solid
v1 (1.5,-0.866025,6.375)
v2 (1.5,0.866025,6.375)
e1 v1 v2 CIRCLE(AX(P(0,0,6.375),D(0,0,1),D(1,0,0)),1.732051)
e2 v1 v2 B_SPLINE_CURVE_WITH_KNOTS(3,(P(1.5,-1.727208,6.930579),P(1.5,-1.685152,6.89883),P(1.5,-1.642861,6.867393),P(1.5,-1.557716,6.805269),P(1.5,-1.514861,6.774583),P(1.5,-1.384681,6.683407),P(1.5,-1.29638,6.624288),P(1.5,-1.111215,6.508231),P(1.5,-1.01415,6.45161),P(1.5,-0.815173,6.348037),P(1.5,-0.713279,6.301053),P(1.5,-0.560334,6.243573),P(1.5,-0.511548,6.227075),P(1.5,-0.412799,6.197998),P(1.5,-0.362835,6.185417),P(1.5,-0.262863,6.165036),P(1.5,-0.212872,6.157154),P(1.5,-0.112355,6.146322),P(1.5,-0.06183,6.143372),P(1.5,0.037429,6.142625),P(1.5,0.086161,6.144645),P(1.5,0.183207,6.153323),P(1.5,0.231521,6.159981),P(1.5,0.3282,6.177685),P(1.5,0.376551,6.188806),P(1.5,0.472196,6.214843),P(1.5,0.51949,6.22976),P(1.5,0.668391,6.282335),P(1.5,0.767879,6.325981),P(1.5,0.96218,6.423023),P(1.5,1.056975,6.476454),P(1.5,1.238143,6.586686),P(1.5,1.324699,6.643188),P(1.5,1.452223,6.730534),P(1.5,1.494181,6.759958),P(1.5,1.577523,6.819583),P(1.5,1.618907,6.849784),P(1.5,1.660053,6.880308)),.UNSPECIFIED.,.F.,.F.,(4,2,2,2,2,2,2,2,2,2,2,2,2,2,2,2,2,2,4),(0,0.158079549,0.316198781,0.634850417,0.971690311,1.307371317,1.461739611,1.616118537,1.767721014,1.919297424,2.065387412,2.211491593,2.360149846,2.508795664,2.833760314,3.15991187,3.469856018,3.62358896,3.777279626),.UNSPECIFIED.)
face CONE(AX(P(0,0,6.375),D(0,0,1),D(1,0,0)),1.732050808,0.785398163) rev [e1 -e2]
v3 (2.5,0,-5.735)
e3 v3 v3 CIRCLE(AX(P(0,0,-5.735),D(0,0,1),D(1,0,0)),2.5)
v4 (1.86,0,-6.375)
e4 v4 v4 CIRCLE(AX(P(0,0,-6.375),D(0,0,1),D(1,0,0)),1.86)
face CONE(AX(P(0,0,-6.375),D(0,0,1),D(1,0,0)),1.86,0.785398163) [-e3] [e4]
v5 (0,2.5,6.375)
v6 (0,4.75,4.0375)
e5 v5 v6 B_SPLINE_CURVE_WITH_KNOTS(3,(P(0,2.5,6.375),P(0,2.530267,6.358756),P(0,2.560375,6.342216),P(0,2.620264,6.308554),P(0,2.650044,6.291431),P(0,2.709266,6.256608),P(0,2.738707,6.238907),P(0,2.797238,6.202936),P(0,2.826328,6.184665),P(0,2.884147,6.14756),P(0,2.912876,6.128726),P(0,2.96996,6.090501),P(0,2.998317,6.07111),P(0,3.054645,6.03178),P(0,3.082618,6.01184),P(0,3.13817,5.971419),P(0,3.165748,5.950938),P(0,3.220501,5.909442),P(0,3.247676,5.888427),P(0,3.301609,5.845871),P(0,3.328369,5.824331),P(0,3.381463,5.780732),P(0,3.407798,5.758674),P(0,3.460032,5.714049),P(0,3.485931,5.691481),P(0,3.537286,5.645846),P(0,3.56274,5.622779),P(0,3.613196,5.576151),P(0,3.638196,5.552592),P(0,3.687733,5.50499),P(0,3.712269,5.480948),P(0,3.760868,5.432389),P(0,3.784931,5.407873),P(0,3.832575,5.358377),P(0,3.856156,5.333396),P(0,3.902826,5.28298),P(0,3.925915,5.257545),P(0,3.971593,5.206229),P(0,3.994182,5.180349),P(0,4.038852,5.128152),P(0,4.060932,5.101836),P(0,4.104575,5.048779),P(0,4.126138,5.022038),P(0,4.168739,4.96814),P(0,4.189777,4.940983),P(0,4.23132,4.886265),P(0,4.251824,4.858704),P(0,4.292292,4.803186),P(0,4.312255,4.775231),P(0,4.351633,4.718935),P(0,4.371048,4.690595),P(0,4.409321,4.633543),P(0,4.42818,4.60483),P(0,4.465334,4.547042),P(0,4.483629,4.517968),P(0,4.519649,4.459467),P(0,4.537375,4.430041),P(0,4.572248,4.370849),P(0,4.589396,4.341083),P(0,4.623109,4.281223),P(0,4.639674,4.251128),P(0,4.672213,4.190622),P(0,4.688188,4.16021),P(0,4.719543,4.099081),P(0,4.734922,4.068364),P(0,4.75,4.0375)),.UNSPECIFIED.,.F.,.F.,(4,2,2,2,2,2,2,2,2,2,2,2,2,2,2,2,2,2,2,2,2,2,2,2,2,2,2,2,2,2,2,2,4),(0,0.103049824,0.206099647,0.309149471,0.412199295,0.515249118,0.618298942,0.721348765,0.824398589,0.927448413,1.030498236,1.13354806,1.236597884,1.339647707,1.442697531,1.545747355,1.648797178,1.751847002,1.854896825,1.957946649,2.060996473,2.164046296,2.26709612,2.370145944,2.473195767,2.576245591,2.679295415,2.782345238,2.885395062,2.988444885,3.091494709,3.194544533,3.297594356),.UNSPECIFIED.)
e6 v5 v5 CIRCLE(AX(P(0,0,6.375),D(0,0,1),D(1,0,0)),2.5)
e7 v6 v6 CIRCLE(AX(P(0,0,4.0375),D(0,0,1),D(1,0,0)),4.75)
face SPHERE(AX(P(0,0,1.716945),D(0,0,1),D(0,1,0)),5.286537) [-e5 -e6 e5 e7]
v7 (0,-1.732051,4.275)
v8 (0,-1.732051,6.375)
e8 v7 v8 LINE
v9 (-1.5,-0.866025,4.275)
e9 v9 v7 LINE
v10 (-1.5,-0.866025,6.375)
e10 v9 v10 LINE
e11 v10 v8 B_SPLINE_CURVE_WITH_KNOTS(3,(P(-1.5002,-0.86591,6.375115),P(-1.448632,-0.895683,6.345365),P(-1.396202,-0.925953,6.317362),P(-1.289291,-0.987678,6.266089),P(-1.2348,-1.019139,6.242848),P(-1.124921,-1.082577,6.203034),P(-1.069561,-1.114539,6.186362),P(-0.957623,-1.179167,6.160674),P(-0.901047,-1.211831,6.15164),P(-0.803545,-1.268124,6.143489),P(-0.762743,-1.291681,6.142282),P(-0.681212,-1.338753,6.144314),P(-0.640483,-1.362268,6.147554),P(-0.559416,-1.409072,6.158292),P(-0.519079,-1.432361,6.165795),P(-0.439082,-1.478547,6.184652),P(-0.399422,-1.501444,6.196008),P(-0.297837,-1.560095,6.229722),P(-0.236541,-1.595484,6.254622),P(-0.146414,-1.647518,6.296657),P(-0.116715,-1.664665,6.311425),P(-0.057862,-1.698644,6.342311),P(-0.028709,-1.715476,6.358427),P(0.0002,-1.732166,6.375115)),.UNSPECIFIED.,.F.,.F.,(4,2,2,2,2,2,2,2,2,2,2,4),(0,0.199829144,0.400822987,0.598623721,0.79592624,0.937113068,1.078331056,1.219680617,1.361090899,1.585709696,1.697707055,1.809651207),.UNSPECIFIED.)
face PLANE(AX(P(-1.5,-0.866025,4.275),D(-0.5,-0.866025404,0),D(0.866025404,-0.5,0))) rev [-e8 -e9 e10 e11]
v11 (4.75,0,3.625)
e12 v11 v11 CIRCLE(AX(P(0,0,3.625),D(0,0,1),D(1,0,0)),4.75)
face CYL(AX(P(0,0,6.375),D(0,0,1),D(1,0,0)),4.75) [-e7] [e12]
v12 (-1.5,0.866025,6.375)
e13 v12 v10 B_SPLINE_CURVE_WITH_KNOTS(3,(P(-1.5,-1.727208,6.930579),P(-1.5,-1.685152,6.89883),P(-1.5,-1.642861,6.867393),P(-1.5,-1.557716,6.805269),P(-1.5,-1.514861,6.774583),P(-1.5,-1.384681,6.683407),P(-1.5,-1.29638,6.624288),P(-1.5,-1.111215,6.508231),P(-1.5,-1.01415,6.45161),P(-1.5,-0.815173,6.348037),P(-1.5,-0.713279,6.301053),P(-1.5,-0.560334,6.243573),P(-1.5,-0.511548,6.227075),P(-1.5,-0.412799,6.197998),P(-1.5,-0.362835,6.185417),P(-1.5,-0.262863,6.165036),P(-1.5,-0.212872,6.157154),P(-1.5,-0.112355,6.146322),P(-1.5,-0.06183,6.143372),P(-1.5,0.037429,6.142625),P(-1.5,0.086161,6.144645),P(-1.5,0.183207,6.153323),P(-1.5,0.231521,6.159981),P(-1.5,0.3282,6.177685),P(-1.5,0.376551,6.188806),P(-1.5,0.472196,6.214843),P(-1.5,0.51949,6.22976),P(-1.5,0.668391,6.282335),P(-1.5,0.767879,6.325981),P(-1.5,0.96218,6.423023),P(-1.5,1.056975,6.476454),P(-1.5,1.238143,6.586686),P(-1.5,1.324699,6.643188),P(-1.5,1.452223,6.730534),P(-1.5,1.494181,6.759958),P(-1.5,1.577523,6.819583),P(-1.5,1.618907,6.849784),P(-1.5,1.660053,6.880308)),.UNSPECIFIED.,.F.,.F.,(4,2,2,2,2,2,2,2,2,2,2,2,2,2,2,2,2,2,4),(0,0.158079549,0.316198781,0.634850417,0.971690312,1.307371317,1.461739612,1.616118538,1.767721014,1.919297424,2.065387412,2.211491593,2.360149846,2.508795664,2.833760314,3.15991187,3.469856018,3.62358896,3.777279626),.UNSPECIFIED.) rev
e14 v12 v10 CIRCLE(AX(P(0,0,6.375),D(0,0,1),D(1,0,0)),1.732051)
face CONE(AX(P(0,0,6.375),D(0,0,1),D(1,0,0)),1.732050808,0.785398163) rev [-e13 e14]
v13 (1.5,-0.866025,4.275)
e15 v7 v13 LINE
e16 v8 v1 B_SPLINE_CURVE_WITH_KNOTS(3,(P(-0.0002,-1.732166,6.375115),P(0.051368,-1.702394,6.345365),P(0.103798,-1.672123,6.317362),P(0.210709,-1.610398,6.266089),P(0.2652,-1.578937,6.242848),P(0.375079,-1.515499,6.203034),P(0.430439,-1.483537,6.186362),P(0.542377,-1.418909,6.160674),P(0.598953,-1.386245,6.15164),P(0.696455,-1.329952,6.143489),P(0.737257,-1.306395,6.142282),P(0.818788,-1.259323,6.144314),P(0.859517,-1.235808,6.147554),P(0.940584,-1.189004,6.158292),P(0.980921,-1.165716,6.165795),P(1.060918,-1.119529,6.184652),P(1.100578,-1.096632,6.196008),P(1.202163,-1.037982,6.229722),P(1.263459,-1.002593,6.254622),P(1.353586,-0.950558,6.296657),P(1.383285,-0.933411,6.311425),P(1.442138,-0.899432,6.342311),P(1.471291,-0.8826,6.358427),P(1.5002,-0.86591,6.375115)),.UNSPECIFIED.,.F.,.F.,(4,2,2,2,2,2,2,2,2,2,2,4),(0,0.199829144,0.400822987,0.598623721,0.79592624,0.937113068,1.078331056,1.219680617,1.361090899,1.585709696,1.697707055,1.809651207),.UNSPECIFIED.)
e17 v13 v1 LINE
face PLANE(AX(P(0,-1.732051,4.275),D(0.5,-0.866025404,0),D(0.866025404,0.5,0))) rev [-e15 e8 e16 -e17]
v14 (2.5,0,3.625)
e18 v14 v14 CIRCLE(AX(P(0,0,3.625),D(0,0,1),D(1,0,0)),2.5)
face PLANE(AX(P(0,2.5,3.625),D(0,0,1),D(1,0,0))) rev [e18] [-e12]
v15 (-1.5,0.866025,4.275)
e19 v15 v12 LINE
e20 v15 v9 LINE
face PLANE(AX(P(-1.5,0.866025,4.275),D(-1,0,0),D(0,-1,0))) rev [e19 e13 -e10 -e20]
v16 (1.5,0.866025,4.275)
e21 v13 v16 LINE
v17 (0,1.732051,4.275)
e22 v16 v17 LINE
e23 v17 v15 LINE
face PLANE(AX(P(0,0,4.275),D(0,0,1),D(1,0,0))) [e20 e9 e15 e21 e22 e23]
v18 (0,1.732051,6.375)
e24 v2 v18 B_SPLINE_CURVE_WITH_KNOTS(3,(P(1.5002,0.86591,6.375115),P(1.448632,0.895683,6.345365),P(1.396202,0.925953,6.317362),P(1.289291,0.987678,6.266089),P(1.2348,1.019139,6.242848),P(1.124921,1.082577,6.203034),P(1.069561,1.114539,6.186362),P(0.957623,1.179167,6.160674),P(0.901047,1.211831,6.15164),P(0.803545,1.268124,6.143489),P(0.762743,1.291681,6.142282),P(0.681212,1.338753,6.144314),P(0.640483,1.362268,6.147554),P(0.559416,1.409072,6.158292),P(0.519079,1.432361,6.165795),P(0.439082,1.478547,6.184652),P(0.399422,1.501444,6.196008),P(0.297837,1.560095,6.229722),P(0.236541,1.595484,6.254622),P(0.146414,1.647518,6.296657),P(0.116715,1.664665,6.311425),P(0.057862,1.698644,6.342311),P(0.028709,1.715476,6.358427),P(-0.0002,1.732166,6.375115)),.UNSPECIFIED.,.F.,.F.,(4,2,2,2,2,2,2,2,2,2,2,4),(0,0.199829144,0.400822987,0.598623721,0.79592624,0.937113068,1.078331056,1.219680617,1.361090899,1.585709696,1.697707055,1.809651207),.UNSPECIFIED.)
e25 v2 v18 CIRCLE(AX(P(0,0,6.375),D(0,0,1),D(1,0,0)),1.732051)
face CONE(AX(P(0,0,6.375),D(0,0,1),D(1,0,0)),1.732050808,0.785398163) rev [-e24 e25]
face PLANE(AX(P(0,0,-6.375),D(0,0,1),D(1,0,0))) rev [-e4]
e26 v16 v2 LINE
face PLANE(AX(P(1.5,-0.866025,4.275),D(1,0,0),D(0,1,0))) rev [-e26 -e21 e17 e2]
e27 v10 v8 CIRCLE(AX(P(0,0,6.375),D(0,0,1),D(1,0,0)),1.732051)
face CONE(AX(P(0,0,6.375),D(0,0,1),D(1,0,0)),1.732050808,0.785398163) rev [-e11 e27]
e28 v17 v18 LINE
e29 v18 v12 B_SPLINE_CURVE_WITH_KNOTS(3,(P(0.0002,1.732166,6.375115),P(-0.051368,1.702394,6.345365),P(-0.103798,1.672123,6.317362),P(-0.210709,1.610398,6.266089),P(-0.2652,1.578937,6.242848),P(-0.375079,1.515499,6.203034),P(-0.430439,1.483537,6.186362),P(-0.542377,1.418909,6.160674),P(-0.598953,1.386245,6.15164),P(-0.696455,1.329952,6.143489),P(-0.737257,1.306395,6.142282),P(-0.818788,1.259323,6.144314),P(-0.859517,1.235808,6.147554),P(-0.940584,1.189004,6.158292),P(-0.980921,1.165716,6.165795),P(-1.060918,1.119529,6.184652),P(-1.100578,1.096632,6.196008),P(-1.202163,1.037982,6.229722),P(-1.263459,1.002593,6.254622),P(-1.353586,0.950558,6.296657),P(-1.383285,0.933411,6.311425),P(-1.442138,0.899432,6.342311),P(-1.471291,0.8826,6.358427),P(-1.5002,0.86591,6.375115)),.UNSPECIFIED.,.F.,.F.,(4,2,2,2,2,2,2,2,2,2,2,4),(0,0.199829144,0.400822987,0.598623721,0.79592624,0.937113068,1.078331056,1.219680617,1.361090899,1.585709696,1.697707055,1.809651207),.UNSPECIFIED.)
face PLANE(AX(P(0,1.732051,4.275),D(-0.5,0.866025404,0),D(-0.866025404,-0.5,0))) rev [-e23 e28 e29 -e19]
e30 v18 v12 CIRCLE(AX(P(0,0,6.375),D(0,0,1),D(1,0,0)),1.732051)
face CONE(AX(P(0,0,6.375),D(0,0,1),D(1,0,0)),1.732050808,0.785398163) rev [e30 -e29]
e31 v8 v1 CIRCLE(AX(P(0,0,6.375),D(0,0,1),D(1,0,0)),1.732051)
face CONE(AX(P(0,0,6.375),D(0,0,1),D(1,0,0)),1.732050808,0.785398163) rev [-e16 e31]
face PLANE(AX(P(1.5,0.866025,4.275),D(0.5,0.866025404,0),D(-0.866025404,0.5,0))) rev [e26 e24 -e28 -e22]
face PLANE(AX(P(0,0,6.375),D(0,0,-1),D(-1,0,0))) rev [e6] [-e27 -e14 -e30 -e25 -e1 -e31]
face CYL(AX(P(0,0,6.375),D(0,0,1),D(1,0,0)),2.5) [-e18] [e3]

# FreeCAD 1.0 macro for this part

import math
import FreeCAD as App
import Part
import Sketcher
from FreeCAD import Vector
Q = App.Units.Quantity

doc = App.newDocument("Part")
body = doc.addObject("PartDesign::Body", "Body")

# Sketch on YZ plane
sketch1 = body.newObject("Sketcher::SketchObject", "Sketch")
sketch1.AttachmentSupport = (doc.getObject("YZ_Plane"), [""])
sketch1.MapMode = "FlatFace"
sketch1.addGeometry([
    Part.LineSegment(Vector(0, 6.38, 0), Vector(0, -6.38, 0)),  # 0
    Part.LineSegment(Vector(0, -6.38, 0), Vector(1.86, -6.38, 0)),  # 1
    Part.LineSegment(Vector(1.86, -6.38, 0), Vector(2.5, -5.74, 0)),  # 2
    Part.LineSegment(Vector(2.5, -5.74, 0), Vector(2.5, 3.62, 0)),  # 3
    Part.LineSegment(Vector(2.5, 3.62, 0), Vector(4.75, 3.62, 0)),  # 4
    Part.LineSegment(Vector(4.75, 3.62, 0), Vector(4.75, 4.04, 0)),  # 5
    Part.ArcOfCircle(Part.Circle(Vector(0, 1.72, 0), Vector(0, 0, 1), 5.29), math.radians(26), math.radians(62)),  # 6
    Part.LineSegment(Vector(2.5, 6.38, 0), Vector(0, 6.38, 0)),  # 7
], False)
sketch1.addConstraint([
    Sketcher.Constraint("Coincident", 0, 2, 1, 1),
    Sketcher.Constraint("Coincident", 1, 2, 2, 1),
    Sketcher.Constraint("Coincident", 2, 2, 3, 1),
    Sketcher.Constraint("Coincident", 3, 2, 4, 1),
    Sketcher.Constraint("Coincident", 4, 2, 5, 1),
    Sketcher.Constraint("Coincident", 5, 2, 6, 1),
    Sketcher.Constraint("Coincident", 6, 2, 7, 1),
    Sketcher.Constraint("Coincident", 7, 2, 0, 1),
    Sketcher.Constraint("Vertical", 0),
    Sketcher.Constraint("Horizontal", 1),
    Sketcher.Constraint("Vertical", 3),
    Sketcher.Constraint("Horizontal", 4),
    Sketcher.Constraint("Vertical", 5),
    Sketcher.Constraint("Horizontal", 7),
    Sketcher.Constraint("Symmetric", 0, 2, 7, 2, -1, 1),
    Sketcher.Constraint("PointOnObject", 6, 3, -2),
    Sketcher.Constraint("Vertical", 3, 2, 6, 2),
    Sketcher.Constraint("Angle", 2, Q("45 deg")),
    Sketcher.Constraint("DistanceX", 7, 2, 7, 1, Q("2.5 mm")),
    Sketcher.Constraint("DistanceY", 1, 2, 3, 2, Q("10 mm")),
    Sketcher.Constraint("DistanceX", 1, 1, 1, 2, Q("1.86 mm")),
    Sketcher.Constraint("DistanceX", 4, 1, 4, 2, Q("2.25 mm")),
    Sketcher.Constraint("DistanceY", 0, 2, 0, 1, Q("12.75 mm")),
    Sketcher.Constraint("DistanceY", 5, 1, 5, 2, Q("0.4125 mm")),
])
revolution = body.newObject("PartDesign::Revolution", "Revolution")
revolution.Profile = sketch1
revolution.ReferenceAxis = (sketch1, ["V_Axis"])
revolution.Angle = 360

# Sketch on XY plane
sketch2 = body.newObject("Sketcher::SketchObject", "Sketch001")
sketch2.AttachmentSupport = (doc.getObject("XY_Plane"), [""])
sketch2.MapMode = "FlatFace"
sketch2.AttachmentOffset = App.Placement(Vector(0, 0, 6.375), App.Rotation())
sketch2.addGeometry([
    Part.LineSegment(Vector(0, 1.7, 0), Vector(-1.5, 0.9, 0)),  # 0
    Part.LineSegment(Vector(-1.5, 0.9, 0), Vector(-1.5, -0.9, 0)),  # 1
    Part.LineSegment(Vector(-1.5, -0.9, 0), Vector(0, -1.7, 0)),  # 2
    Part.LineSegment(Vector(0, -1.7, 0), Vector(1.5, -0.9, 0)),  # 3
    Part.LineSegment(Vector(1.5, -0.9, 0), Vector(1.5, 0.9, 0)),  # 4
    Part.LineSegment(Vector(1.5, 0.9, 0), Vector(0, 1.7, 0)),  # 5
], False)
sketch2.addConstraint([
    Sketcher.Constraint("Coincident", 0, 2, 1, 1),
    Sketcher.Constraint("Coincident", 1, 2, 2, 1),
    Sketcher.Constraint("Coincident", 2, 2, 3, 1),
    Sketcher.Constraint("Coincident", 3, 2, 4, 1),
    Sketcher.Constraint("Coincident", 4, 2, 5, 1),
    Sketcher.Constraint("Coincident", 5, 2, 0, 1),
    Sketcher.Constraint("Vertical", 1),
    Sketcher.Constraint("Vertical", 4),
    Sketcher.Constraint("Symmetric", 0, 2, 3, 2, -1, 1),
    Sketcher.Constraint("Symmetric", 2, 2, 5, 2, -1, 1),
    Sketcher.Constraint("PointOnObject", 2, 2, -2),
    Sketcher.Constraint("Parallel", 2, 5),
    Sketcher.Constraint("Horizontal", 1, 2, 3, 2),
    Sketcher.Constraint("Angle", 0, Q("-150 deg")),
    Sketcher.Constraint("DistanceX", 1, 2, 3, 2, Q("3 mm")),
    Sketcher.Constraint("DistanceY", 1, 2, 1, 1, Q("1.732051 mm")),
])
pocket1 = body.newObject("PartDesign::Pocket", "Pocket")
pocket1.Profile = sketch2
pocket1.Length = 2.1

# Sketch on YZ plane
sketch3 = body.newObject("Sketcher::SketchObject", "Sketch002")
sketch3.AttachmentSupport = (doc.getObject("YZ_Plane"), [""])
sketch3.MapMode = "FlatFace"
sketch3.addGeometry([
    Part.LineSegment(Vector(0, 6.4, 0), Vector(-1.7, 6.4, 0)),
    Part.LineSegment(Vector(-1.7, 6.4, 0), Vector(0, 4.6, 0)),
    Part.LineSegment(Vector(0, 4.6, 0), Vector(0, 6.4, 0)),
], False)
sketch3.addConstraint([
    Sketcher.Constraint("Coincident", 0, 2, 1, 1),
    Sketcher.Constraint("Coincident", 1, 2, 2, 1),
    Sketcher.Constraint("Coincident", 2, 2, 0, 1),
    Sketcher.Constraint("Horizontal", 0),
    Sketcher.Constraint("Vertical", 2),
    Sketcher.Constraint("PointOnObject", 1, 2, -2),
    Sketcher.Constraint("Equal", 0, 2),
    Sketcher.Constraint("DistanceY", -1, 1, 0, 2, Q("6.375 mm")),
    Sketcher.Constraint("DistanceX", 0, 2, 0, 1, Q("1.732051 mm")),
])
groove = body.newObject("PartDesign::Groove", "Groove")
groove.Profile = sketch3
groove.ReferenceAxis = (sketch3, ["V_Axis"])
groove.Angle = 360

doc.recompute()
